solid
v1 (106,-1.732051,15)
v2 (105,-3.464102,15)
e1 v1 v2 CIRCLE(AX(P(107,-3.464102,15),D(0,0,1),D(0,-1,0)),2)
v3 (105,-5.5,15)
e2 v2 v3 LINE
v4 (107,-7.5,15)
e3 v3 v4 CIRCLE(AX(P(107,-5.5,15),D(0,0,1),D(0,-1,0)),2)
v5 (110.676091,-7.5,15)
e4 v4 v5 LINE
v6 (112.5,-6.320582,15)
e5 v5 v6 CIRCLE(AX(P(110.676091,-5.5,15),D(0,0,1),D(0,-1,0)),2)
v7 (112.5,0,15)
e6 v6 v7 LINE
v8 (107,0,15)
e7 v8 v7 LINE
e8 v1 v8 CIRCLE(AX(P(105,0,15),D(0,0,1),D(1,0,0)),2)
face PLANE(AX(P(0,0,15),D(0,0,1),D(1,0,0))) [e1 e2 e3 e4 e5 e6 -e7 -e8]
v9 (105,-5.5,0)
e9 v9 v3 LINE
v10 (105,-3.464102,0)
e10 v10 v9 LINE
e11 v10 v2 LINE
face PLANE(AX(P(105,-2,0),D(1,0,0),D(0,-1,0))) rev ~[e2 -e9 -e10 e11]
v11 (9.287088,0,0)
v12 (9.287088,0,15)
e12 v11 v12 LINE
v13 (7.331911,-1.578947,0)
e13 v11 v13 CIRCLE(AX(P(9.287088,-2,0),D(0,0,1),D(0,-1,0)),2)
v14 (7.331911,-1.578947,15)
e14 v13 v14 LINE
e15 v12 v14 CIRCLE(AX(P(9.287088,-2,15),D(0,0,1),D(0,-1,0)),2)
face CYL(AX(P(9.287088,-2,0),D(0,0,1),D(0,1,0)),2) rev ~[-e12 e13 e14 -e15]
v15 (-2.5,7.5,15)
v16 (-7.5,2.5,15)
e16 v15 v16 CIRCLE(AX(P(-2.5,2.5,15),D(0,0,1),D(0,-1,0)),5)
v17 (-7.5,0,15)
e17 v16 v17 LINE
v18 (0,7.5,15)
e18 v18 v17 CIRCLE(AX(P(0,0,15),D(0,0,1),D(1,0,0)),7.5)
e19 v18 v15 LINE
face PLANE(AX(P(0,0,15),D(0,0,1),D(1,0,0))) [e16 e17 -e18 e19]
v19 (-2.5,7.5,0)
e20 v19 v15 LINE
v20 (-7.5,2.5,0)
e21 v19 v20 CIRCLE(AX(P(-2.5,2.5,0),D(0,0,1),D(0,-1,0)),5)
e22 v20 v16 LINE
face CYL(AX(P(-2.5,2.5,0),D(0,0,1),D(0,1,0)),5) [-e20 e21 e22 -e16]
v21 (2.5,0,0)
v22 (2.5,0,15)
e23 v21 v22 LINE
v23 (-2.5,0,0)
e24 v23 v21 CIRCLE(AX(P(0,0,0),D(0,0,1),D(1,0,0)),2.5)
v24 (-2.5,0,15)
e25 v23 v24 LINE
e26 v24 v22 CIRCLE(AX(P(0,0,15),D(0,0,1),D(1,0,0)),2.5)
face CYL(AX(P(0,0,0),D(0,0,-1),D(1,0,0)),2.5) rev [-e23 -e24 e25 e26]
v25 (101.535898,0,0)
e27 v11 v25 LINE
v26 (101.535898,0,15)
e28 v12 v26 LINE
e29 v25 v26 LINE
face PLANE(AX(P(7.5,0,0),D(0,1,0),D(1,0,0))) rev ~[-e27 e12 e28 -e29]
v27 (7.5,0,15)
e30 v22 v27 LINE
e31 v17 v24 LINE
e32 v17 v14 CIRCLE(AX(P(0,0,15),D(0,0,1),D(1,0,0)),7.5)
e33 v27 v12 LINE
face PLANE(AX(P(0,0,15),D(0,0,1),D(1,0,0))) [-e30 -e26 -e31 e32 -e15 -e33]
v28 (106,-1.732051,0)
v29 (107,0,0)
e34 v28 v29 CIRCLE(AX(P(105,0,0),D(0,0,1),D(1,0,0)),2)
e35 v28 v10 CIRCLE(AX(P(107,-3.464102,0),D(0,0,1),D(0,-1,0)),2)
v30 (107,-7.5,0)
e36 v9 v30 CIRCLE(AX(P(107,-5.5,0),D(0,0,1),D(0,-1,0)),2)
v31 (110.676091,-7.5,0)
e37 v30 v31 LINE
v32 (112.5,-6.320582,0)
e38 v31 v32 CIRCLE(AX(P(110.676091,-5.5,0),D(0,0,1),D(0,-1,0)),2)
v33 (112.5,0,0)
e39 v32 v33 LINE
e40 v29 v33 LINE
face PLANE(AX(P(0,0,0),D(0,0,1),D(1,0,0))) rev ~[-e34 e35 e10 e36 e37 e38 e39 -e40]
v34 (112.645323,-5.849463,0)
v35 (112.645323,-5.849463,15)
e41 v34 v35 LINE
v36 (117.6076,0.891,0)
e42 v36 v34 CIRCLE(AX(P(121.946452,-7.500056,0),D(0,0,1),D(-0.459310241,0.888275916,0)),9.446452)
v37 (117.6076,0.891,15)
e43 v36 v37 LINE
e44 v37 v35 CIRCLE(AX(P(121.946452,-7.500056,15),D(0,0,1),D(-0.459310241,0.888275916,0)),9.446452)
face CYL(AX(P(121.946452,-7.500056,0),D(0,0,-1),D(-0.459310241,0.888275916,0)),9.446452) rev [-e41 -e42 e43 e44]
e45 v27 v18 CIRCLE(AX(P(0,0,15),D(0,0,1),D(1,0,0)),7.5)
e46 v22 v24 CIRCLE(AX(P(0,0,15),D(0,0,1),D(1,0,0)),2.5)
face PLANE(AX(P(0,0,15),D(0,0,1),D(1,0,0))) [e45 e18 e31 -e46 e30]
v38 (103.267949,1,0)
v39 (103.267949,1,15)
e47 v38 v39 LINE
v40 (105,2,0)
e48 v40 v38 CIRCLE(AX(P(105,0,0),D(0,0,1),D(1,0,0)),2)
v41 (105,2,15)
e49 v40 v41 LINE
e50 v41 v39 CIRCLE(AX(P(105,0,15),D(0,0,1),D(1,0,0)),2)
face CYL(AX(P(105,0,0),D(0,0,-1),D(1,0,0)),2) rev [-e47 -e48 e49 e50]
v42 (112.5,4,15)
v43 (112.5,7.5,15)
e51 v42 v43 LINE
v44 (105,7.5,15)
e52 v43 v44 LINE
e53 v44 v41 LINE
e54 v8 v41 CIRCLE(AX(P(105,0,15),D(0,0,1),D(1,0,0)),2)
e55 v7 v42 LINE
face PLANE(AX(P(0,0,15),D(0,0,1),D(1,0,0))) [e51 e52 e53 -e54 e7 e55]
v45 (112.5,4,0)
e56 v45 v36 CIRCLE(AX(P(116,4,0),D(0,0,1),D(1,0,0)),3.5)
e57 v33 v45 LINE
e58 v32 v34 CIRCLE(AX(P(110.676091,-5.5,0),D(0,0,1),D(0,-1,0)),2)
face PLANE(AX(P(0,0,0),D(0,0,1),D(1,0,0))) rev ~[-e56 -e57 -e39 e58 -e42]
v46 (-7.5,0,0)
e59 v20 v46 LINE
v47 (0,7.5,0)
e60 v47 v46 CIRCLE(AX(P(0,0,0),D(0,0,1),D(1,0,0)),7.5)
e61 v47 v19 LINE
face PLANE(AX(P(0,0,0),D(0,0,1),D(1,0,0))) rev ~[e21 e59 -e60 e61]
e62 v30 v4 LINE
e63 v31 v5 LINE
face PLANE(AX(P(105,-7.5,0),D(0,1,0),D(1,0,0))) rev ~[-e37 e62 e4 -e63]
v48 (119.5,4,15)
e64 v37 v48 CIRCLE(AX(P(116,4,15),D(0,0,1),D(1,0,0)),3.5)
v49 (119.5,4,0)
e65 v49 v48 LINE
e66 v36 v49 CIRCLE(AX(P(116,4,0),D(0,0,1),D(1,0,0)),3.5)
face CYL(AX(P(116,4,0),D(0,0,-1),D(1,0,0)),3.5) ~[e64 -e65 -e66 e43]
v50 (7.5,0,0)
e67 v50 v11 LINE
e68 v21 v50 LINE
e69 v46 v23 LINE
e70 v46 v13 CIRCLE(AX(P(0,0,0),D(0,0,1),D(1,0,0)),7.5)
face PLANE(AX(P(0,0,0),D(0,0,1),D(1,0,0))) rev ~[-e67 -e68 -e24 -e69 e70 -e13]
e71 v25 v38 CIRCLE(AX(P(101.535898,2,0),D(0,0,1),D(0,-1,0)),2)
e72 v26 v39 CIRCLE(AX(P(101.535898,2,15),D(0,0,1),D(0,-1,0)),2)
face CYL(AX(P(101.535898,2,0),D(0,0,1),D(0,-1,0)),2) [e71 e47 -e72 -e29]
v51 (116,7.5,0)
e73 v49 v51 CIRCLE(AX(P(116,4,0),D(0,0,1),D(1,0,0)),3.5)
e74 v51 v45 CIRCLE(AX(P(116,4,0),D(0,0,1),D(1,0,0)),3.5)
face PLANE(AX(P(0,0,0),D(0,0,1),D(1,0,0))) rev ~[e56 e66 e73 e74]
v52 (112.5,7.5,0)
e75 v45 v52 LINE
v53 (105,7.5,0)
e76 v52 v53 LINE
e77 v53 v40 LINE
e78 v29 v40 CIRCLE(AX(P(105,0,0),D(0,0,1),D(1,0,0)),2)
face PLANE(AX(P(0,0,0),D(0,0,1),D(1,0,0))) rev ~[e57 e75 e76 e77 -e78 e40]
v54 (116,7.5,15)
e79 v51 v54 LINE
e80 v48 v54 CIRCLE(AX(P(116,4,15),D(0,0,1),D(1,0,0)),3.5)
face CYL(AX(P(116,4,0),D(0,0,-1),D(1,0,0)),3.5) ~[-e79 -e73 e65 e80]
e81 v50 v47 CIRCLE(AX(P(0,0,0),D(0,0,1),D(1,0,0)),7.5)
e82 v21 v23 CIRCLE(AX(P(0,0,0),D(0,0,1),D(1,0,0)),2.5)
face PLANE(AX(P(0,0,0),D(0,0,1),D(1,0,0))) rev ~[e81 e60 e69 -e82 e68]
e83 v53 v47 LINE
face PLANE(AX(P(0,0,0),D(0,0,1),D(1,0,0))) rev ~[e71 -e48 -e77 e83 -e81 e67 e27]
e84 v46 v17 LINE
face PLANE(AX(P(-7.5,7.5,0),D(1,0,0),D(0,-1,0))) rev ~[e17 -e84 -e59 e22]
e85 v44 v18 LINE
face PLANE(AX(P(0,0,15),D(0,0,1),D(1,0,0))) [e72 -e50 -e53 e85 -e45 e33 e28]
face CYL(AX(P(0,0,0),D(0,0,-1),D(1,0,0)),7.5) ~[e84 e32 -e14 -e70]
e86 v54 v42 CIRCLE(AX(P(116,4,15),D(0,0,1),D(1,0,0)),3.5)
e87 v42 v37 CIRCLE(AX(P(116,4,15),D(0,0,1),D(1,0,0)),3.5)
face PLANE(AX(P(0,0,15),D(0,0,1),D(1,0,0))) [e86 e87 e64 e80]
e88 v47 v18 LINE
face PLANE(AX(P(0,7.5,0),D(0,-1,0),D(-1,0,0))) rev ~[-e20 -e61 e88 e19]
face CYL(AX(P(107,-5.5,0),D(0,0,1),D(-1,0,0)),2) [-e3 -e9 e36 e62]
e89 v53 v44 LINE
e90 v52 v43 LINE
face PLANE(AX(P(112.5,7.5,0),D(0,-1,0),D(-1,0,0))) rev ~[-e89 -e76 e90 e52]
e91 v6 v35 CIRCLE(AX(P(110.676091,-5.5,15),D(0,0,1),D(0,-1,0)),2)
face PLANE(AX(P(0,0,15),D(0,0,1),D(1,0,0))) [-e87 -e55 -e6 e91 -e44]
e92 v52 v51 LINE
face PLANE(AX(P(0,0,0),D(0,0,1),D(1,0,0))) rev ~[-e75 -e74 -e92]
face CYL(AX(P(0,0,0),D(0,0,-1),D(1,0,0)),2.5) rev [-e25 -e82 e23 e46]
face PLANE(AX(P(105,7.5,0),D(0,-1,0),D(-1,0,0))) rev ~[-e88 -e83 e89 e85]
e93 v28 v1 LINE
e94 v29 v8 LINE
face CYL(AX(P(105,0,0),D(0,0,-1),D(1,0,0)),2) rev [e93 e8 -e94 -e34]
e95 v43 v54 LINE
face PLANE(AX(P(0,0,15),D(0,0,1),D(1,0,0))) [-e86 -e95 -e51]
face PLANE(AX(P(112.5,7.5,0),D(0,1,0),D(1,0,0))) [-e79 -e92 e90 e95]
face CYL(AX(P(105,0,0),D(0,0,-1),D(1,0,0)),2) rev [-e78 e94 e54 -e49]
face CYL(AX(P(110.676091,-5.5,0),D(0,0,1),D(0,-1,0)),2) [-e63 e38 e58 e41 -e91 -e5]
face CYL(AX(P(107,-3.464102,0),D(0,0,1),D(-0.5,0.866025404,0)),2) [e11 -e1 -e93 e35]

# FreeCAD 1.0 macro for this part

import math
import FreeCAD as App
import Part
import Sketcher

V = App.Vector
Q = App.Units.Quantity


def edges_at(feature, points):
    """Names of the edges that pass closest to the given points."""
    edges = feature.Shape.Edges
    near = lambda p: min(range(len(edges)), key=lambda i: edges[i].distToShape(Part.Vertex(*p))[0])
    return sorted({f"Edge{near(p) + 1}" for p in points})

doc = App.newDocument("Part")
body = doc.addObject("PartDesign::Body", "Body")

sketch1 = doc.addObject("Sketcher::SketchObject", "Sketch")
body.addObject(sketch1)
sketch1.AttachmentSupport = (doc.XY_Plane, [""])
sketch1.MapMode = "FlatFace"
sketch1.addGeometry([
    Part.ArcOfCircle(Part.Circle(V(0, 0, 0), V(0, 0, 1), 7.5), math.radians(180), math.radians(360)),
    Part.LineSegment(V(7.5, 0, 0), V(103, 0, 0)),
    Part.ArcOfCircle(Part.Circle(V(105, 0, 0), V(0, 0, 1), 2), math.radians(-90), math.radians(180)),
    Part.LineSegment(V(105, -2, 0), V(105, -7.5, 0)),
    Part.LineSegment(V(105, -7.5, 0), V(112.5, -7.5, 0)),
    Part.ArcOfCircle(Part.Circle(V(121.9, -7.5, 0), V(0, 0, 1), 9.4), math.radians(117), math.radians(180)),
    Part.ArcOfCircle(Part.Circle(V(116, 4, 0), V(0, 0, 1), 3.5), math.radians(-63), math.radians(90)),
    Part.LineSegment(V(116, 7.5, 0), V(-7.5, 7.5, 0)),
    Part.LineSegment(V(-7.5, 7.5, 0), V(-7.5, 0, 0)),
    Part.Circle(V(0, 0, 0), V(0, 0, 1), 2.5),
], False)
sketch1.addConstraint([
    Sketcher.Constraint("Coincident", 0, 2, 1, 1),
    Sketcher.Constraint("Coincident", 1, 2, 2, 2),
    Sketcher.Constraint("Coincident", 2, 1, 3, 1),
    Sketcher.Constraint("Coincident", 3, 2, 4, 1),
    Sketcher.Constraint("Coincident", 4, 2, 5, 2),
    Sketcher.Constraint("Tangent", 5, 1, 6, 1),
    Sketcher.Constraint("Tangent", 6, 2, 7, 1),
    Sketcher.Constraint("Coincident", 7, 2, 8, 1),
    Sketcher.Constraint("Tangent", 8, 2, 0, 1),
    Sketcher.Constraint("Horizontal", 1),
    Sketcher.Constraint("Vertical", 3),
    Sketcher.Constraint("Horizontal", 4),
    Sketcher.Constraint("Horizontal", 7),
    Sketcher.Constraint("Vertical", 8),
    Sketcher.Constraint("Coincident", 0, 3, -1, 1),
    Sketcher.Constraint("Coincident", 9, 3, -1, 1),
    Sketcher.Constraint("PointOnObject", 2, 3, -1),
    Sketcher.Constraint("PointOnObject", 0, 2, -1),
    Sketcher.Constraint("Horizontal", 5, 3, 3, 2),
    Sketcher.Constraint("Equal", 4, 8),
    Sketcher.Constraint("Diameter", 9, Q("5 mm")),
    Sketcher.Constraint("Radius", 2, Q("2 mm")),
    Sketcher.Constraint("Radius", 0, Q("7.5 mm")),
    Sketcher.Constraint("Radius", 6, Q("3.5 mm")),
    Sketcher.Constraint("DistanceY", -1, 1, 6, 3, Q("4 mm")),
    Sketcher.Constraint("DistanceX", 1, 1, 1, 2, Q("95.5 mm")),
    Sketcher.Constraint("DistanceX", 7, 2, 7, 1, Q("123.5 mm")),
    Sketcher.Constraint("DistanceY", 3, 2, 3, 1, Q("5.5 mm")),
    Sketcher.Constraint("DistanceX", -1, 1, 2, 1, Q("105 mm")),
])
pad1 = doc.addObject("PartDesign::Pad", "Pad")
body.addObject(pad1)
pad1.Profile = sketch1
pad1.Length = 15
doc.recompute()

fillet = doc.addObject("PartDesign::Fillet", "Fillet")
body.addObject(fillet)
fillet.Base = (pad1, edges_at(pad1, [
    (103, 0, 7.5),
    (105, -2, 7.5),
    (105, -7.5, 7.5),
    (112.5, -7.5, 7.5),
    (7.5, 0, 7.5),
]))
fillet.Radius = 2
doc.recompute()

fillet2 = doc.addObject("PartDesign::Fillet", "Fillet001")
body.addObject(fillet2)
fillet2.Base = (fillet, edges_at(fillet, [(-7.5, 7.5, 7.5)]))
fillet2.Radius = 5

doc.recompute()
